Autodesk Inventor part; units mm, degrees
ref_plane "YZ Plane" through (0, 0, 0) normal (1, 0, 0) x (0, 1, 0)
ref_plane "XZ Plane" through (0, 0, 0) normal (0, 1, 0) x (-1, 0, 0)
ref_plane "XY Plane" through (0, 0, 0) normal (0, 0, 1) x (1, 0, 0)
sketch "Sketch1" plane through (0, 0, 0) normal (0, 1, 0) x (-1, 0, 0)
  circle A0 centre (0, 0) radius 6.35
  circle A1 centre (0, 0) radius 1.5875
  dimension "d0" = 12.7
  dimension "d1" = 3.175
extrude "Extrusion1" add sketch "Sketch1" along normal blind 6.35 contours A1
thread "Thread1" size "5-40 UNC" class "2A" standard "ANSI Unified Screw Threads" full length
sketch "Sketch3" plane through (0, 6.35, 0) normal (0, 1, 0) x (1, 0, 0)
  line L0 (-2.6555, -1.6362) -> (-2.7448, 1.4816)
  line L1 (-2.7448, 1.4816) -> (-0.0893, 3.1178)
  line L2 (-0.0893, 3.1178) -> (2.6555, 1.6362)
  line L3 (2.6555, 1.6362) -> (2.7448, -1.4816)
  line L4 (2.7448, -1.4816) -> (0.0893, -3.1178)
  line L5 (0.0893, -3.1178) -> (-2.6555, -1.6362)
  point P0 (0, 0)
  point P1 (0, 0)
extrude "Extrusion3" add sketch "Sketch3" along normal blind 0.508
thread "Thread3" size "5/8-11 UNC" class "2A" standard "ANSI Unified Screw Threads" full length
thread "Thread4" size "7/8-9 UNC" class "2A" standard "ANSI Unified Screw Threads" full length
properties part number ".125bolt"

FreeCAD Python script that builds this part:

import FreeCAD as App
import Part
import Sketcher

V = App.Vector
Q = App.Units.Quantity

doc = App.newDocument("Part")
body = doc.addObject("PartDesign::Body", "Body")

sketch1 = body.newObject("Sketcher::SketchObject", "Sketch")
sketch1.AttachmentSupport = (doc.getObject("XZ_Plane"), [""])
sketch1.MapMode = "FlatFace"
sketch1.addGeometry(Part.Circle(V(0, 0, 0), V(0, 0, 1), 1.6), False)
sketch1.addConstraint(Sketcher.Constraint("Coincident", 0, 3, -1, 1))
sketch1.addConstraint(Sketcher.Constraint("Diameter", 0, Q("0.125 in")))
pad1 = body.newObject("PartDesign::Pad", "Pad")
pad1.Profile = sketch1
pad1.Length = Q("0.25 in")
pad1.Reversed = True

sketch2 = body.newObject("Sketcher::SketchObject", "Sketch001")
sketch2.AttachmentSupport = (doc.getObject("XZ_Plane"), [""])
sketch2.MapMode = "FlatFace"
sketch2.AttachmentOffset = App.Placement(V(0, 0, -0.25 * 25.4), App.Rotation())
sketch2.addGeometry(Part.LineSegment(V(-2.7, -1.5, 0), V(-2.7, 1.6, 0)), False)
sketch2.addGeometry(Part.LineSegment(V(-2.7, 1.6, 0), V(0.1, 3.1, 0)), False)
sketch2.addGeometry(Part.LineSegment(V(0.1, 3.1, 0), V(2.7, 1.5, 0)), False)
sketch2.addGeometry(Part.LineSegment(V(2.7, 1.5, 0), V(2.7, -1.6, 0)), False)
sketch2.addGeometry(Part.LineSegment(V(2.7, -1.6, 0), V(-0.1, -3.1, 0)), False)
sketch2.addGeometry(Part.LineSegment(V(-0.1, -3.1, 0), V(-2.7, -1.5, 0)), False)
sketch2.addConstraint(Sketcher.Constraint("Coincident", 0, 2, 1, 1))
sketch2.addConstraint(Sketcher.Constraint("Coincident", 1, 2, 2, 1))
sketch2.addConstraint(Sketcher.Constraint("Coincident", 2, 2, 3, 1))
sketch2.addConstraint(Sketcher.Constraint("Coincident", 3, 2, 4, 1))
sketch2.addConstraint(Sketcher.Constraint("Coincident", 4, 2, 5, 1))
sketch2.addConstraint(Sketcher.Constraint("Coincident", 5, 2, 0, 1))
sketch2.addConstraint(Sketcher.Constraint("Symmetric", 0, 2, 3, 2, -1, 1))
sketch2.addConstraint(Sketcher.Constraint("Symmetric", 1, 2, 4, 2, -1, 1))
sketch2.addConstraint(Sketcher.Constraint("Symmetric", 2, 2, 5, 2, -1, 1))
sketch2.addConstraint(Sketcher.Constraint("Equal", 0, 1))
sketch2.addConstraint(Sketcher.Constraint("Equal", 1, 2))
sketch2.addConstraint(Sketcher.Constraint("Angle", 0, Q("88.3594 deg")))
sketch2.addConstraint(Sketcher.Constraint("Angle", 1, Q("28.3595 deg")))
sketch2.addConstraint(Sketcher.Constraint("Angle", 2, Q("-31.6395 deg")))
sketch2.addConstraint(Sketcher.Constraint("Distance", 0, Q("0.1228 in")))
pad2 = body.newObject("PartDesign::Pad", "Pad001")
pad2.Profile = sketch2
pad2.Length = Q("0.02 in")
pad2.Reversed = True

doc.recompute()
